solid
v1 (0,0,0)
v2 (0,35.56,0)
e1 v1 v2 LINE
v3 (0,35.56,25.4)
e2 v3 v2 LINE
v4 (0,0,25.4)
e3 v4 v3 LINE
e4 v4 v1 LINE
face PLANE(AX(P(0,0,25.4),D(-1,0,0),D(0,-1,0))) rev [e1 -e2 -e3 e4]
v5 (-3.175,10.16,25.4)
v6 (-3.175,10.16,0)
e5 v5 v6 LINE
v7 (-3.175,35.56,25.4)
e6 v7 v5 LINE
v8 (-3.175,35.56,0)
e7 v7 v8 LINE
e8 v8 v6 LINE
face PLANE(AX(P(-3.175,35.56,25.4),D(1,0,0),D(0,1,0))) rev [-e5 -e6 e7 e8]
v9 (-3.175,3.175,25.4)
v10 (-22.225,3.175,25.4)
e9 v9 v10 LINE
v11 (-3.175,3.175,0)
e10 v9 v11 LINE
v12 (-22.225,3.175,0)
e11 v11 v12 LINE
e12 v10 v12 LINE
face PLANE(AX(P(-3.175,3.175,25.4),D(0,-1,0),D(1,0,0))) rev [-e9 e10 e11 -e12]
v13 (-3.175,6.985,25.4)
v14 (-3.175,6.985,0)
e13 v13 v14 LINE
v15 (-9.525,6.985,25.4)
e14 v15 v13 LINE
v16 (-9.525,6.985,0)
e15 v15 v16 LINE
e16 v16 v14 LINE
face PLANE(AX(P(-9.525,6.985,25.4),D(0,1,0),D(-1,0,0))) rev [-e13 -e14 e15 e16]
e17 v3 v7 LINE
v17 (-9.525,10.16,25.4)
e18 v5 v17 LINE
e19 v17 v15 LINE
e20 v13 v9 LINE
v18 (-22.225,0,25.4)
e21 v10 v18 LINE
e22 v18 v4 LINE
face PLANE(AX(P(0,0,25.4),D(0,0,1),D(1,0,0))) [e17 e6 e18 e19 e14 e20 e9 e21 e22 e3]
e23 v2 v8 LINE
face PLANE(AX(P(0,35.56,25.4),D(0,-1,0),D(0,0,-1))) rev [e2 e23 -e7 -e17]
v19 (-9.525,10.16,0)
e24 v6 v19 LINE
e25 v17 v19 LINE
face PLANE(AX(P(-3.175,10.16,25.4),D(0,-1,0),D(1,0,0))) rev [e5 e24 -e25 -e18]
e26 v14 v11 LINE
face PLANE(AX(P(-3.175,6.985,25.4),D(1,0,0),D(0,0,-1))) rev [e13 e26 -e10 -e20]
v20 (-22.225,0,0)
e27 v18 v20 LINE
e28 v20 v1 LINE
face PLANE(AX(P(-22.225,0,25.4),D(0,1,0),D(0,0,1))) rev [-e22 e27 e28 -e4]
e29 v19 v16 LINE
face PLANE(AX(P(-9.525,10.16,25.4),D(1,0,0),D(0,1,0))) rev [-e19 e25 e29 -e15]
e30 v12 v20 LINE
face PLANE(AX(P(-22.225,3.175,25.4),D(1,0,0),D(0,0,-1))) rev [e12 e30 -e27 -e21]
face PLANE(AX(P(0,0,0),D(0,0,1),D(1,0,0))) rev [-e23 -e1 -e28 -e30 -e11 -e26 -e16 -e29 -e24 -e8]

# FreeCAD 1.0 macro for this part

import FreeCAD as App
import Part
import Sketcher

V = App.Vector
Q = App.Units.Quantity

doc = App.newDocument("Part")
body = doc.addObject("PartDesign::Body", "Body")

sketch1 = body.newObject("Sketcher::SketchObject", "Sketch")
sketch1.AttachmentSupport = (doc.getObject("XY_Plane"), [""])
sketch1.MapMode = "FlatFace"
sketch1.addGeometry([
    Part.LineSegment(V(0, 0, 0), V(0, 35.6, 0)),
    Part.LineSegment(V(0, 35.6, 0), V(-3.2, 35.6, 0)),
    Part.LineSegment(V(-3.2, 35.6, 0), V(-3.2, 10.2, 0)),
    Part.LineSegment(V(-3.2, 10.2, 0), V(-9.5, 10.2, 0)),
    Part.LineSegment(V(-9.5, 10.2, 0), V(-9.5, 7, 0)),
    Part.LineSegment(V(-9.5, 7, 0), V(-3.2, 7, 0)),
    Part.LineSegment(V(-3.2, 7, 0), V(-3.2, 3.2, 0)),
    Part.LineSegment(V(-3.2, 3.2, 0), V(-22.2, 3.2, 0)),
    Part.LineSegment(V(-22.2, 3.2, 0), V(-22.2, 0, 0)),
    Part.LineSegment(V(-22.2, 0, 0), V(0, 0, 0)),
], False)
sketch1.addConstraint([
    Sketcher.Constraint("Coincident", 0, 2, 1, 1),
    Sketcher.Constraint("Coincident", 1, 2, 2, 1),
    Sketcher.Constraint("Coincident", 2, 2, 3, 1),
    Sketcher.Constraint("Coincident", 3, 2, 4, 1),
    Sketcher.Constraint("Coincident", 4, 2, 5, 1),
    Sketcher.Constraint("Coincident", 5, 2, 6, 1),
    Sketcher.Constraint("Coincident", 6, 2, 7, 1),
    Sketcher.Constraint("Coincident", 7, 2, 8, 1),
    Sketcher.Constraint("Coincident", 8, 2, 9, 1),
    Sketcher.Constraint("Coincident", 9, 2, 0, 1),
    Sketcher.Constraint("Vertical", 0),
    Sketcher.Constraint("Horizontal", 1),
    Sketcher.Constraint("Vertical", 2),
    Sketcher.Constraint("Horizontal", 3),
    Sketcher.Constraint("Vertical", 4),
    Sketcher.Constraint("Horizontal", 5),
    Sketcher.Constraint("Vertical", 6),
    Sketcher.Constraint("Horizontal", 7),
    Sketcher.Constraint("Vertical", 8),
    Sketcher.Constraint("Horizontal", 9),
    Sketcher.Constraint("Coincident", 9, 2, -1, 1),
    Sketcher.Constraint("Vertical", 2, 2, 5, 2),
    Sketcher.Constraint("Equal", 1, 4),
    Sketcher.Constraint("Equal", 4, 8),
    Sketcher.Constraint("DistanceY", 2, 2, 2, 1, Q("1 in")),
    Sketcher.Constraint("DistanceY", 0, 1, 0, 2, Q("1.4 in")),
    Sketcher.Constraint("DistanceX", 3, 2, 3, 1, Q("0.25 in")),
    Sketcher.Constraint("DistanceX", 7, 2, 7, 1, Q("0.75 in")),
    Sketcher.Constraint("DistanceY", 6, 2, 6, 1, Q("0.15 in")),
])
pad1 = body.newObject("PartDesign::Pad", "Pad")
pad1.Profile = sketch1
pad1.Length = Q("1 in")

doc.recompute()
